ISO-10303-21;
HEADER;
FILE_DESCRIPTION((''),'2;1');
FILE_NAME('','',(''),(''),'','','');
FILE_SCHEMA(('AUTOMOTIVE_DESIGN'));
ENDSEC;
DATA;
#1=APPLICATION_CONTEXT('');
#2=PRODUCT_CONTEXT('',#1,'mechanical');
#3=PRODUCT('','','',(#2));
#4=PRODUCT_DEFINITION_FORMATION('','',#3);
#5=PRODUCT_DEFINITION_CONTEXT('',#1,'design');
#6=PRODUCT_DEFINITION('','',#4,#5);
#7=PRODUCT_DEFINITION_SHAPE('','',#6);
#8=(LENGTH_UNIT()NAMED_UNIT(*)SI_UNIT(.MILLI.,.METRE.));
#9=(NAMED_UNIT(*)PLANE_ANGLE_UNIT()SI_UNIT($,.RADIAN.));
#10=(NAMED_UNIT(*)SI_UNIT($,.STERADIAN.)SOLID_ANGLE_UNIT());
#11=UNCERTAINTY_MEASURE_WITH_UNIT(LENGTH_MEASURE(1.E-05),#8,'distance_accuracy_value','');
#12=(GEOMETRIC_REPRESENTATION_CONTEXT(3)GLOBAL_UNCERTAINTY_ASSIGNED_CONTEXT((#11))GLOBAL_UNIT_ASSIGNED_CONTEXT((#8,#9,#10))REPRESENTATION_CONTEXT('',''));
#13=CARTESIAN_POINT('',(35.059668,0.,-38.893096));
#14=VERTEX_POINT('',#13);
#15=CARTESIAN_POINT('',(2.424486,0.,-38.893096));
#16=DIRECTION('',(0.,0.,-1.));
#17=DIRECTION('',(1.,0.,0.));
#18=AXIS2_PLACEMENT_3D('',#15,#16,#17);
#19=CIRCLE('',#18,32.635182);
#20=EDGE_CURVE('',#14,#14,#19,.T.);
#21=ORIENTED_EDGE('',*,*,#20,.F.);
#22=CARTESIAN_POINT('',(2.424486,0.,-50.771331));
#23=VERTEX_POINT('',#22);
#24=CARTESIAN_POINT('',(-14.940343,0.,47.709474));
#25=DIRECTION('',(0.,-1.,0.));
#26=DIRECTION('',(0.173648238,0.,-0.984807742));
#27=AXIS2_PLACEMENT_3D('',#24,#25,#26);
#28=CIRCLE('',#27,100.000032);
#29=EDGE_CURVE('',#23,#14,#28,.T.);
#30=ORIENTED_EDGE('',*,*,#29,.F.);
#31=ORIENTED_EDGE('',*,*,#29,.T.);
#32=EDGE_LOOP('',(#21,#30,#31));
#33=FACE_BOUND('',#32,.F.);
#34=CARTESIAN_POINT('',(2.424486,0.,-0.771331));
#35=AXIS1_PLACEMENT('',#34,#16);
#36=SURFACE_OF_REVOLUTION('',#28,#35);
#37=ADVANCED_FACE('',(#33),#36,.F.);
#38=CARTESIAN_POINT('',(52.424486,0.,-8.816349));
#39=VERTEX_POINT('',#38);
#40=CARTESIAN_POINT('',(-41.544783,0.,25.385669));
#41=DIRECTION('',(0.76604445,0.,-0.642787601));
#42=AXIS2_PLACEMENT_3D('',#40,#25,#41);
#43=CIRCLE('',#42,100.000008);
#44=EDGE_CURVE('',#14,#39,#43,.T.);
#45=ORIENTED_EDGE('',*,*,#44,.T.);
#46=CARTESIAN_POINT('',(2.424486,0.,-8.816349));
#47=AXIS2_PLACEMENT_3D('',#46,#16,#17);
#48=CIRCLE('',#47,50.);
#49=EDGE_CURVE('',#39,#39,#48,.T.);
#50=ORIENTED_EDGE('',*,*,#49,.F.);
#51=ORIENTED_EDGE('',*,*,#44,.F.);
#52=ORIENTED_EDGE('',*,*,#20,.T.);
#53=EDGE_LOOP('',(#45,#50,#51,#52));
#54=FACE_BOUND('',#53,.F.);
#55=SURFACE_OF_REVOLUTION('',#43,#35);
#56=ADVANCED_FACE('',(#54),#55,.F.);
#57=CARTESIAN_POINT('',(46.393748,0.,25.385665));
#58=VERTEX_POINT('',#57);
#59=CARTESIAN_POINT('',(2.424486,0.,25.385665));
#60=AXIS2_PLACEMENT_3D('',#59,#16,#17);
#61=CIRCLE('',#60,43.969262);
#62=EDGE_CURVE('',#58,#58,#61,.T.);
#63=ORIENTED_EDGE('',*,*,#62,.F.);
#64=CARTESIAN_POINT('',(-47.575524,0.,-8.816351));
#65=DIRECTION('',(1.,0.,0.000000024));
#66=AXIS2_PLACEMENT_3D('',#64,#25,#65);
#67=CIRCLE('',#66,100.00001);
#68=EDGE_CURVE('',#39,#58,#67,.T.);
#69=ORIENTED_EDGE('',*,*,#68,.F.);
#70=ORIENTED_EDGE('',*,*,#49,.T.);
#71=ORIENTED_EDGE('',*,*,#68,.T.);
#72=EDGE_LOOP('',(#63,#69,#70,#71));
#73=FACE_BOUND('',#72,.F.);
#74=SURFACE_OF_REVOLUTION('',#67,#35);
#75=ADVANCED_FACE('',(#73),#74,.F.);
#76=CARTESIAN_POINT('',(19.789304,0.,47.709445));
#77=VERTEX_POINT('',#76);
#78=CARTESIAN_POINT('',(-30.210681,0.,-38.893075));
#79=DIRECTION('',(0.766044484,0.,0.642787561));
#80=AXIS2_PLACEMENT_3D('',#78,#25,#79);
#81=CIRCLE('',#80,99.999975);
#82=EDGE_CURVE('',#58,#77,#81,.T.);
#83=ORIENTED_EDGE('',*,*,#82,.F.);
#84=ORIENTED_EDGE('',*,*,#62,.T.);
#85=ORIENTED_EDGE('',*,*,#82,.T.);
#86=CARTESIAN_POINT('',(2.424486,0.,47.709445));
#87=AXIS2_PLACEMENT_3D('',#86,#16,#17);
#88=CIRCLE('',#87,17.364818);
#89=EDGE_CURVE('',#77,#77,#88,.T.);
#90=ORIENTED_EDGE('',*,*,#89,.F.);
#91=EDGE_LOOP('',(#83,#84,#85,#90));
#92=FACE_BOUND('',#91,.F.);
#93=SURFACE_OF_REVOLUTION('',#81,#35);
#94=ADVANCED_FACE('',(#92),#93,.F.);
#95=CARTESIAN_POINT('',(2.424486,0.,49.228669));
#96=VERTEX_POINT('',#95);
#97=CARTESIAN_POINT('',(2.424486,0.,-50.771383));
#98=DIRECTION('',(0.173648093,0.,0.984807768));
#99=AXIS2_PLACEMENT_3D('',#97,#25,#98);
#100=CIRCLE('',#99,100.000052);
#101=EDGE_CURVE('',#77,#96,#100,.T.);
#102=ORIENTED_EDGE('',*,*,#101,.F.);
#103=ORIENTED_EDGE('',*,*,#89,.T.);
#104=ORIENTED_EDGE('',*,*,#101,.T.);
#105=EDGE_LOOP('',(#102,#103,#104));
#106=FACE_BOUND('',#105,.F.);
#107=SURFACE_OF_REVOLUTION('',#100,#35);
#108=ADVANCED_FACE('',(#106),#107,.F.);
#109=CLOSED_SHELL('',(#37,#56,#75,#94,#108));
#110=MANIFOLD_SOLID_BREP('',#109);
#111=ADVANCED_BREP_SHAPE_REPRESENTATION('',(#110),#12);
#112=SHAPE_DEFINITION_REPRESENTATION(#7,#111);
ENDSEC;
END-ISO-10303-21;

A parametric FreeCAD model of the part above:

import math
import FreeCAD as App
import Part
import Sketcher

V = App.Vector

doc = App.newDocument("Part")
body = doc.addObject("PartDesign::Body", "Body")

sketch1 = doc.addObject("Sketcher::SketchObject", "Sketch")
body.addObject(sketch1)
sketch1.AttachmentSupport = (doc.XZ_Plane, [""])
sketch1.MapMode = "FlatFace"
sketch1.addGeometry([
    Part.ArcOfCircle(Part.Circle(V(-30, -39, 0), V(0, 0, 1), 100), math.radians(40), math.radians(60)),
    Part.ArcOfCircle(Part.Circle(V(2, -51, 0), V(0, 0, 1), 100), math.radians(80), math.radians(90)),
    Part.LineSegment(V(2, 49, 0), V(2, -51, 0)),
    Part.ArcOfCircle(Part.Circle(V(-15, 48, 0), V(0, 0, 1), 100), math.radians(-80), math.radians(-60)),
    Part.ArcOfCircle(Part.Circle(V(-42, 25, 0), V(0, 0, 1), 100), math.radians(-40), math.radians(-20)),
    Part.ArcOfCircle(Part.Circle(V(-48, -9, 0), V(0, 0, 1), 100), math.radians(0), math.radians(20)),
], False)
sketch1.addGeometry(Part.LineSegment(V(2, 49, 0), V(2, -51, 0)), True)
sketch1.addConstraint([
    Sketcher.Constraint("Coincident", 0, 2, 1, 1),
    Sketcher.Constraint("Coincident", 1, 2, 2, 1),
    Sketcher.Constraint("Coincident", 2, 2, 3, 1),
    Sketcher.Constraint("Coincident", 3, 2, 4, 1),
    Sketcher.Constraint("Coincident", 4, 2, 5, 1),
    Sketcher.Constraint("Coincident", 5, 2, 0, 1),
    Sketcher.Constraint("Vertical", 2),
    Sketcher.Constraint("Vertical", 6),
    Sketcher.Constraint("Coincident", 6, 1, 1, 2),
    Sketcher.Constraint("Coincident", 6, 2, 1, 3),
    Sketcher.Constraint("DistanceY", 2, 2, 2, 1, 100.0),
    Sketcher.Constraint("DistanceX", 2, 2, 4, 2, 50.0),
    Sketcher.Constraint("Radius", 3, 100.000032),
    Sketcher.Constraint("Radius", 5, 100.00001),
    Sketcher.Constraint("Radius", 0, 99.999975),
    Sketcher.Constraint("Radius", 1, 100.000052),
    Sketcher.Constraint("Radius", 4, 100.000008),
    Sketcher.Constraint("DistanceY", 4, 3, 1, 2, 23.843),
    Sketcher.Constraint("DistanceX", 4, 3, 0, 3, 11.334102),
    Sketcher.Constraint("DistanceX", 0, 3, -1, 1, 30.210681),
    Sketcher.Constraint("DistanceY", -1, 1, 4, 3, 25.385669),
    Sketcher.Constraint("DistanceY", 5, 3, -1, 1, 8.816351),
    Sketcher.Constraint("DistanceY", 4, 2, -1, 1, 8.816349),
    Sketcher.Constraint("DistanceX", -1, 1, 5, 2, 46.393748),
    Sketcher.Constraint("DistanceY", 0, 3, 3, 3, 86.60255),
])
revolution = doc.addObject("PartDesign::Revolution", "Revolution")
body.addObject(revolution)
revolution.Profile = sketch1
revolution.ReferenceAxis = (sketch1, ["Axis0"])
revolution.Angle = 360

doc.recompute()
